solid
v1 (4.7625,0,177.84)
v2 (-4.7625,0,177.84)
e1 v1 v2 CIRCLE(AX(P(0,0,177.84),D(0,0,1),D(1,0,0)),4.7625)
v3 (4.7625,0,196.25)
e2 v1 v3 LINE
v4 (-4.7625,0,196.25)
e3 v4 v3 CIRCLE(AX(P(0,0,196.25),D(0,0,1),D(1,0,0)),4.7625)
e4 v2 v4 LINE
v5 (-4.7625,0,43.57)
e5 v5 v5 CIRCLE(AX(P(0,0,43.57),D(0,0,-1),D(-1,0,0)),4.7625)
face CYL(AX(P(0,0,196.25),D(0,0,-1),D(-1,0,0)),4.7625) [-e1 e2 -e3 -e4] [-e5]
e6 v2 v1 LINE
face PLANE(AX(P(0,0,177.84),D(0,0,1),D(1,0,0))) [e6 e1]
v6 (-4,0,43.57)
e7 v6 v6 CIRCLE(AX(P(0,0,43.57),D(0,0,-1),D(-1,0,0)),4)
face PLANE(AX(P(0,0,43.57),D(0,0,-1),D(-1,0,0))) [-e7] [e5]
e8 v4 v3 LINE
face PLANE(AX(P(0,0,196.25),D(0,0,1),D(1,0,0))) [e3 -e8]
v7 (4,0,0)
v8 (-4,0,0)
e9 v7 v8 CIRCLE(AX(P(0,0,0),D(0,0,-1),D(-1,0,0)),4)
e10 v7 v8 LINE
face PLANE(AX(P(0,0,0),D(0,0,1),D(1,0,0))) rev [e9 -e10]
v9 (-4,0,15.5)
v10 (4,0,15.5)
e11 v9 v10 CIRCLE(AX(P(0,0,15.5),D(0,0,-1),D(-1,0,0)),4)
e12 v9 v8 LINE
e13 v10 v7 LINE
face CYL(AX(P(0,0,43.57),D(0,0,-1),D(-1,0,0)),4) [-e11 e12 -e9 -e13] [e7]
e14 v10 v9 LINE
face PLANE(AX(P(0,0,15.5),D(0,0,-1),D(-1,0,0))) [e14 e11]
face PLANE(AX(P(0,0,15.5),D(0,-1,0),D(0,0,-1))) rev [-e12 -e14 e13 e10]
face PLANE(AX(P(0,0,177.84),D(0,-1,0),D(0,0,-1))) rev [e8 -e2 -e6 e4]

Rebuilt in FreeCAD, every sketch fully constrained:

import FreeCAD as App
import Part
import Sketcher
from FreeCAD import Vector
Q = App.Units.Quantity

doc = App.newDocument("Part")
params = doc.addObject("Spreadsheet::Sheet", "Params")
for row, (alias, value) in enumerate([
    ("pad1_length", "196.25 mm"),
    ("pocket1_length", "18.41 mm"),
    ("sketch3_diameter", "8 mm"),
    ("pocket2_length", "43.57 mm"),
    ("pocket3_length", "15.5 mm"),
], start=1):
    params.set(f"A{row}", alias)
    params.set(f"B{row}", "=" + value)
    params.setAlias(f"B{row}", alias)

body = doc.addObject("PartDesign::Body", "Body")

sketch1 = body.newObject("Sketcher::SketchObject", "Sketch")
sketch1.AttachmentSupport = (doc.getObject("XY_Plane"), [""])
sketch1.MapMode = "FlatFace"
sketch1.addGeometry(Part.Circle(Vector(0, 0, 0), Vector(0, 0, 1), 4.8), False)
sketch1.addConstraint([
    Sketcher.Constraint("Coincident", 0, 3, -1, 1),
    Sketcher.Constraint("Diameter", 0, Q("9.525 mm")),
])
pad1 = body.newObject("PartDesign::Pad", "Pad")
pad1.Profile = sketch1
pad1.setExpression("Length", "Params.pad1_length")

sketch2 = body.newObject("Sketcher::SketchObject", "Sketch001")
sketch2.AttachmentSupport = (doc.getObject("XY_Plane"), [""])
sketch2.MapMode = "FlatFace"
sketch2.AttachmentOffset = App.Placement(Vector(0, 0, 196.25), App.Rotation())
sketch2.addGeometry([
    Part.LineSegment(Vector(-36, 0, 0), Vector(36, 0, 0)),
    Part.LineSegment(Vector(36, 0, 0), Vector(36, 63, 0)),
    Part.LineSegment(Vector(36, 63, 0), Vector(-36, 63, 0)),
    Part.LineSegment(Vector(-36, 63, 0), Vector(-36, 0, 0)),
], False)
sketch2.addConstraint([
    Sketcher.Constraint("Coincident", 0, 2, 1, 1),
    Sketcher.Constraint("Coincident", 1, 2, 2, 1),
    Sketcher.Constraint("Coincident", 2, 2, 3, 1),
    Sketcher.Constraint("Coincident", 3, 2, 0, 1),
    Sketcher.Constraint("Horizontal", 0),
    Sketcher.Constraint("Vertical", 1),
    Sketcher.Constraint("Horizontal", 2),
    Sketcher.Constraint("Vertical", 3),
    Sketcher.Constraint("Symmetric", 0, 2, 3, 2, -1, 1),
    Sketcher.Constraint("DistanceX", 0, 1, 0, 2, Q("72.122095 mm")),
    Sketcher.Constraint("DistanceY", 1, 1, 1, 2, Q("62.597095 mm")),
])
pocket1 = body.newObject("PartDesign::Pocket", "Pocket")
pocket1.Profile = sketch2
pocket1.setExpression("Length", "Params.pocket1_length")

sketch3 = body.newObject("Sketcher::SketchObject", "Sketch002")
sketch3.AttachmentSupport = (doc.getObject("XY_Plane"), [""])
sketch3.MapMode = "FlatFace"
sketch3.addGeometry([
    Part.Circle(Vector(0, 0, 0), Vector(0, 0, 1), 4.8),
    Part.Circle(Vector(0, 0, 0), Vector(0, 0, 1), 4),
], False)
sketch3.addConstraint([
    Sketcher.Constraint("Coincident", 0, 3, -1, 1),
    Sketcher.Constraint("Coincident", 1, 3, -1, 1),
    Sketcher.Constraint("Diameter", 1, Q("8 mm")),
    Sketcher.Constraint("Diameter", 0, Q("9.525 mm")),
])
sketch3.setExpression("Constraints[2]", "Params.sketch3_diameter")
pocket2 = body.newObject("PartDesign::Pocket", "Pocket001")
pocket2.Profile = sketch3
pocket2.setExpression("Length", "Params.pocket2_length")
pocket2.Reversed = True

sketch4 = body.newObject("Sketcher::SketchObject", "Sketch003")
sketch4.AttachmentSupport = (doc.getObject("XY_Plane"), [""])
sketch4.MapMode = "FlatFace"
sketch4.addGeometry([
    Part.LineSegment(Vector(34, 0, 0), Vector(-34, 0, 0)),
    Part.LineSegment(Vector(-34, 0, 0), Vector(-34, 60, 0)),
    Part.LineSegment(Vector(-34, 60, 0), Vector(34, 60, 0)),
    Part.LineSegment(Vector(34, 60, 0), Vector(34, 0, 0)),
], False)
sketch4.addConstraint([
    Sketcher.Constraint("Coincident", 0, 2, 1, 1),
    Sketcher.Constraint("Coincident", 1, 2, 2, 1),
    Sketcher.Constraint("Coincident", 2, 2, 3, 1),
    Sketcher.Constraint("Coincident", 3, 2, 0, 1),
    Sketcher.Constraint("Horizontal", 0),
    Sketcher.Constraint("Vertical", 1),
    Sketcher.Constraint("Horizontal", 2),
    Sketcher.Constraint("Vertical", 3),
    Sketcher.Constraint("Symmetric", 0, 2, 3, 2, -1, 1),
    Sketcher.Constraint("DistanceX", 0, 2, 0, 1, Q("67.892418 mm")),
    Sketcher.Constraint("DistanceY", 1, 1, 1, 2, Q("59.892418 mm")),
])
pocket3 = body.newObject("PartDesign::Pocket", "Pocket002")
pocket3.Profile = sketch4
pocket3.setExpression("Length", "Params.pocket3_length")
pocket3.Reversed = True

doc.recompute()
